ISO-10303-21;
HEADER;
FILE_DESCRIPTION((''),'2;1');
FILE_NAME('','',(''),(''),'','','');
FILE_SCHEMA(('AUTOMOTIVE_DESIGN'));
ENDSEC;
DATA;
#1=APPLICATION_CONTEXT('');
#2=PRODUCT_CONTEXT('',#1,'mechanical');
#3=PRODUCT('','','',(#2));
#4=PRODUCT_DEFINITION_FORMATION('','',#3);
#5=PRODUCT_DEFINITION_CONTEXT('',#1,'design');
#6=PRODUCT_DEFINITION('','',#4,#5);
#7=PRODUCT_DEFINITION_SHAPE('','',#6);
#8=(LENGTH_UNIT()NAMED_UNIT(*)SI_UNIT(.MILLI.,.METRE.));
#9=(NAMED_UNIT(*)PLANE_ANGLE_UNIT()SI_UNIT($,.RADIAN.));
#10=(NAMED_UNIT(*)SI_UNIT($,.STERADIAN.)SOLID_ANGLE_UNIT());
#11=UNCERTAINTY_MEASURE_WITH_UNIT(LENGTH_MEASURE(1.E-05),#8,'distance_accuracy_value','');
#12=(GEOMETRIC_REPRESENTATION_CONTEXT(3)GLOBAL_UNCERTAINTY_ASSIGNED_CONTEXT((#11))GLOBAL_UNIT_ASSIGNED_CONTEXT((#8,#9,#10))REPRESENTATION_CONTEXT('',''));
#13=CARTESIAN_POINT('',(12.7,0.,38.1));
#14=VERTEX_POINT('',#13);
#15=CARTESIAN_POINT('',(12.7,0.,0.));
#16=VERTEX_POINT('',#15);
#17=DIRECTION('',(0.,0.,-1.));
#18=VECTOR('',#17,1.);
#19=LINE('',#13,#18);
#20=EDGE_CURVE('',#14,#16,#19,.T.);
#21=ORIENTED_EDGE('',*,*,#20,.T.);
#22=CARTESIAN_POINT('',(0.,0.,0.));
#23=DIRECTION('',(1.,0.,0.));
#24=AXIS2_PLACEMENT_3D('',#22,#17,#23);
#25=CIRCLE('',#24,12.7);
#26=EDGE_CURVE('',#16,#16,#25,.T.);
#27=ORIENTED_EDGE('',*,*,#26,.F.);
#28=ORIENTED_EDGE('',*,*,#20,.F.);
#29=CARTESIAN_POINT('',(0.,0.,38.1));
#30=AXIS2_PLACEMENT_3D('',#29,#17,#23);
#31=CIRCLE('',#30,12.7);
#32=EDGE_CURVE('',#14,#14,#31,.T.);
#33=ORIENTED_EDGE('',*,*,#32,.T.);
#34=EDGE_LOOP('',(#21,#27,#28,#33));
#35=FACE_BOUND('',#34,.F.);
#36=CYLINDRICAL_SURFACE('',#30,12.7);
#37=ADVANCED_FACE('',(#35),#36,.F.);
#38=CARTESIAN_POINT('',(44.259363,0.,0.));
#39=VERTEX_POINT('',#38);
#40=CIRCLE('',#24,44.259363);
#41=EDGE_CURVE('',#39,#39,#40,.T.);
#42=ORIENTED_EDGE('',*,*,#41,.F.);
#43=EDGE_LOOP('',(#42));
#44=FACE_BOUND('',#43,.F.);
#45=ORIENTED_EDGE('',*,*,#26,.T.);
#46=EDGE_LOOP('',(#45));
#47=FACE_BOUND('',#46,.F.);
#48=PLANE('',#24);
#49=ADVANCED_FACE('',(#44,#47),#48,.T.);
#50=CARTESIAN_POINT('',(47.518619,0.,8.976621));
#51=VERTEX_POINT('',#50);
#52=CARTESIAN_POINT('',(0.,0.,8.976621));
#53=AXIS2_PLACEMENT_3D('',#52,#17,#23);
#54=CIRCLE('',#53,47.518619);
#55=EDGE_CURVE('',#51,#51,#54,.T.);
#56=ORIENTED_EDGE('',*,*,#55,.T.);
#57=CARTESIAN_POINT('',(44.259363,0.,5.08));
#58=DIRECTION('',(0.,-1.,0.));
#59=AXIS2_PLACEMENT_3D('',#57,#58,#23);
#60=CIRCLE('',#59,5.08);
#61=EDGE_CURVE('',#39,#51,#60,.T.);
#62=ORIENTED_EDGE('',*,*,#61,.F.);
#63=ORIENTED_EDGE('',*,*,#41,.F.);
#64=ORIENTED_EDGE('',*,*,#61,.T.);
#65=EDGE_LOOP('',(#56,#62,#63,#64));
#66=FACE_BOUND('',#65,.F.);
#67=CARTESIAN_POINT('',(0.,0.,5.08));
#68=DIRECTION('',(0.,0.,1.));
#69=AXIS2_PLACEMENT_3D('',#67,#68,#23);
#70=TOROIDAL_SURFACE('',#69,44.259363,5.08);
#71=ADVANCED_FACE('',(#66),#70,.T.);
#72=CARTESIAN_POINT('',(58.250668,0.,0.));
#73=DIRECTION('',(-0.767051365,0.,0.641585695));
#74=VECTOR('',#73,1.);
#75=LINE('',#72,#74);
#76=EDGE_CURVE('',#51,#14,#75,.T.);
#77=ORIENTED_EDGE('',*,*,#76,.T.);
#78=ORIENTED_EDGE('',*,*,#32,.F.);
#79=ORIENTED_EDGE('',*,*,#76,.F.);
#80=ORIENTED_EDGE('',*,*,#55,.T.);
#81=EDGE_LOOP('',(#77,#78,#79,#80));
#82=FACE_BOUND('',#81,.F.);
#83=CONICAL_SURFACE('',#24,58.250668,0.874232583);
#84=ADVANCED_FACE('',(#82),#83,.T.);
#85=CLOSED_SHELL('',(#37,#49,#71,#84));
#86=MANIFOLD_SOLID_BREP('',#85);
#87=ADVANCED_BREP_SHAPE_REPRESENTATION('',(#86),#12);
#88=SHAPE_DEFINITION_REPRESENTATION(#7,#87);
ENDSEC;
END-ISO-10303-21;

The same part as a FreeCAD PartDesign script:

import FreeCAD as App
import Part
import Sketcher
from FreeCAD import Vector
Q = App.Units.Quantity


def edges_at(feature, points):
    """Names of the edges that pass closest to the given points."""
    edges = feature.Shape.Edges
    near = lambda p: min(range(len(edges)), key=lambda i: edges[i].distToShape(Part.Vertex(*p))[0])
    return sorted({f"Edge{near(p) + 1}" for p in points})


def add_polygon(sketch, points):
    """Adds a closed chain of lines whose ends are joined by coincident constraints."""
    first, n = sketch.GeometryCount, len(points)
    for a, b in zip(points, points[1:] + points[:1]):
        sketch.addGeometry(Part.LineSegment(App.Vector(*a, 0), App.Vector(*b, 0)), False)
    for i in range(n):
        sketch.addConstraint(Sketcher.Constraint("Coincident", first + i, 2, first + (i + 1) % n, 1))

doc = App.newDocument("Part")
body = doc.addObject("PartDesign::Body", "Body")

sketch1 = body.newObject("Sketcher::SketchObject", "Sketch")
sketch1.AttachmentSupport = (doc.getObject("XZ_Plane"), [""])
sketch1.MapMode = "FlatFace"
add_polygon(sketch1, [(13, 38), (13, 0), (58, 0)])
sketch1.addConstraint([
    Sketcher.Constraint("Vertical", 0),
    Sketcher.Constraint("Horizontal", 1),
    Sketcher.Constraint("PointOnObject", 0, 2, -1),
    Sketcher.Constraint("DistanceY", 0, 2, 0, 1, Q("1.5 in")),
    Sketcher.Constraint("DistanceX", -1, 1, 0, 2, Q("0.5 in")),
    Sketcher.Constraint("DistanceX", 1, 1, 1, 2, Q("45.550668 mm")),
])
revolution = body.newObject("PartDesign::Revolution", "Revolution")
revolution.Profile = sketch1
revolution.ReferenceAxis = (sketch1, ["V_Axis"])
revolution.Angle = 360
doc.recompute()

fillet = body.newObject("PartDesign::Fillet", "Fillet")
fillet.Base = (revolution, edges_at(revolution, [(-58.251, 0, 0)]))
fillet.Radius = Q("0.2 in")

doc.recompute()
